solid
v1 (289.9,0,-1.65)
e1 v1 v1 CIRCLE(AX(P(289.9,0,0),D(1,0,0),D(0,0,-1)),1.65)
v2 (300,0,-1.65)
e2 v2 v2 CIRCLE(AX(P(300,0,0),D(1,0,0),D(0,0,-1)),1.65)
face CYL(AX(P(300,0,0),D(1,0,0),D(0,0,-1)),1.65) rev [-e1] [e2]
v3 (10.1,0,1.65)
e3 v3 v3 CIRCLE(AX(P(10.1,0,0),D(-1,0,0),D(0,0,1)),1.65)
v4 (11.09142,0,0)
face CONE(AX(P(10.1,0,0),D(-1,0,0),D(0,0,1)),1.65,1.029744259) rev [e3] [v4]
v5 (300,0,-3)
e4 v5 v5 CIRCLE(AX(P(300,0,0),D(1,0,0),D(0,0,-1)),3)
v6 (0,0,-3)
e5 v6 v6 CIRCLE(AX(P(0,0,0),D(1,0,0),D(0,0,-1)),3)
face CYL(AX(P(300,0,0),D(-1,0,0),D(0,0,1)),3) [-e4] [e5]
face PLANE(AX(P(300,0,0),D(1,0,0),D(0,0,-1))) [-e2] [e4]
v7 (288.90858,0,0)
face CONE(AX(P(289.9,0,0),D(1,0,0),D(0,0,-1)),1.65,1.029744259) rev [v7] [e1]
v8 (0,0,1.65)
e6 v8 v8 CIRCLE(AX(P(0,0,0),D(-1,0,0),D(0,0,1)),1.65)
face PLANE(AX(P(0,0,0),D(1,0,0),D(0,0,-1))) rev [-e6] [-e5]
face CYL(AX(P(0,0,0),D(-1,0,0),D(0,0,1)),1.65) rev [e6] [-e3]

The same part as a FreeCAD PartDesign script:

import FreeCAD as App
import Part
import Sketcher

V = App.Vector
Q = App.Units.Quantity

doc = App.newDocument("Part")
params = doc.addObject("Spreadsheet::Sheet", "Params")
for row, (alias, value) in enumerate([
    ("sketch1_diameter", "6 mm"),
    ("pad1_length", "300 mm"),
    ("sketch2_diameter", "3.3 mm"),
    ("hole_diameter", "3.3 mm"),
    ("hole_depth", "10.1 mm"),
    ("sketch3_diameter", "3.3 mm"),
    ("hole2_diameter", "3.3 mm"),
    ("hole2_depth", "10.1 mm"),
], start=1):
    params.set(f"A{row}", alias)
    params.set(f"B{row}", "=" + value)
    params.setAlias(f"B{row}", alias)

body = doc.addObject("PartDesign::Body", "Body")

sketch1 = doc.addObject("Sketcher::SketchObject", "Sketch")
body.addObject(sketch1)
sketch1.AttachmentSupport = (doc.YZ_Plane, [""])
sketch1.MapMode = "FlatFace"
sketch1.addGeometry(Part.Circle(V(0, 0, 0), V(0, 0, 1), 3), False)
sketch1.addConstraint([
    Sketcher.Constraint("Coincident", 0, 3, -1, 1),
    Sketcher.Constraint("Diameter", 0, Q("6 mm")),
])
sketch1.setExpression("Constraints[1]", "Params.sketch1_diameter")
pad1 = doc.addObject("PartDesign::Pad", "Pad")
body.addObject(pad1)
pad1.Profile = sketch1
pad1.setExpression("Length", "Params.pad1_length")

sketch2 = doc.addObject("Sketcher::SketchObject", "Sketch001")
body.addObject(sketch2)
sketch2.AttachmentSupport = (doc.YZ_Plane, [""])
sketch2.MapMode = "FlatFace"
sketch2.addGeometry(Part.Circle(V(0, 0, 0), V(0, 0, 1), 1.65), False)
sketch2.addConstraint([
    Sketcher.Constraint("Coincident", 0, 3, -1, 1),
    Sketcher.Constraint("Diameter", 0, Q("3.3 mm")),
])
sketch2.setExpression("Constraints[1]", "Params.sketch2_diameter")
doc.recompute()
hole = doc.addObject("PartDesign::Hole", "Hole")
body.addObject(hole)
hole.Profile = sketch2
hole.ThreadType = "None"
hole.setExpression("Diameter", "Params.hole_diameter")
hole.DepthType = "Dimension"
hole.setExpression("Depth", "Params.hole_depth")
hole.DrillPoint = "Angled"
hole.DrillPointAngle = 118
hole.Reversed = True

sketch3 = doc.addObject("Sketcher::SketchObject", "Sketch002")
body.addObject(sketch3)
sketch3.AttachmentSupport = (doc.YZ_Plane, [""])
sketch3.MapMode = "FlatFace"
sketch3.AttachmentOffset = App.Placement(V(0, 0, 300), App.Rotation())
sketch3.addGeometry(Part.Circle(V(0, 0, 0), V(0, 0, 1), 1.65), False)
sketch3.addConstraint([
    Sketcher.Constraint("Coincident", 0, 3, -1, 1),
    Sketcher.Constraint("Diameter", 0, Q("3.3 mm")),
])
sketch3.setExpression("Constraints[1]", "Params.sketch3_diameter")
doc.recompute()
hole2 = doc.addObject("PartDesign::Hole", "Hole001")
body.addObject(hole2)
hole2.Profile = sketch3
hole2.ThreadType = "None"
hole2.setExpression("Diameter", "Params.hole2_diameter")
hole2.DepthType = "Dimension"
hole2.setExpression("Depth", "Params.hole2_depth")
hole2.DrillPoint = "Angled"
hole2.DrillPointAngle = 118

doc.recompute()
